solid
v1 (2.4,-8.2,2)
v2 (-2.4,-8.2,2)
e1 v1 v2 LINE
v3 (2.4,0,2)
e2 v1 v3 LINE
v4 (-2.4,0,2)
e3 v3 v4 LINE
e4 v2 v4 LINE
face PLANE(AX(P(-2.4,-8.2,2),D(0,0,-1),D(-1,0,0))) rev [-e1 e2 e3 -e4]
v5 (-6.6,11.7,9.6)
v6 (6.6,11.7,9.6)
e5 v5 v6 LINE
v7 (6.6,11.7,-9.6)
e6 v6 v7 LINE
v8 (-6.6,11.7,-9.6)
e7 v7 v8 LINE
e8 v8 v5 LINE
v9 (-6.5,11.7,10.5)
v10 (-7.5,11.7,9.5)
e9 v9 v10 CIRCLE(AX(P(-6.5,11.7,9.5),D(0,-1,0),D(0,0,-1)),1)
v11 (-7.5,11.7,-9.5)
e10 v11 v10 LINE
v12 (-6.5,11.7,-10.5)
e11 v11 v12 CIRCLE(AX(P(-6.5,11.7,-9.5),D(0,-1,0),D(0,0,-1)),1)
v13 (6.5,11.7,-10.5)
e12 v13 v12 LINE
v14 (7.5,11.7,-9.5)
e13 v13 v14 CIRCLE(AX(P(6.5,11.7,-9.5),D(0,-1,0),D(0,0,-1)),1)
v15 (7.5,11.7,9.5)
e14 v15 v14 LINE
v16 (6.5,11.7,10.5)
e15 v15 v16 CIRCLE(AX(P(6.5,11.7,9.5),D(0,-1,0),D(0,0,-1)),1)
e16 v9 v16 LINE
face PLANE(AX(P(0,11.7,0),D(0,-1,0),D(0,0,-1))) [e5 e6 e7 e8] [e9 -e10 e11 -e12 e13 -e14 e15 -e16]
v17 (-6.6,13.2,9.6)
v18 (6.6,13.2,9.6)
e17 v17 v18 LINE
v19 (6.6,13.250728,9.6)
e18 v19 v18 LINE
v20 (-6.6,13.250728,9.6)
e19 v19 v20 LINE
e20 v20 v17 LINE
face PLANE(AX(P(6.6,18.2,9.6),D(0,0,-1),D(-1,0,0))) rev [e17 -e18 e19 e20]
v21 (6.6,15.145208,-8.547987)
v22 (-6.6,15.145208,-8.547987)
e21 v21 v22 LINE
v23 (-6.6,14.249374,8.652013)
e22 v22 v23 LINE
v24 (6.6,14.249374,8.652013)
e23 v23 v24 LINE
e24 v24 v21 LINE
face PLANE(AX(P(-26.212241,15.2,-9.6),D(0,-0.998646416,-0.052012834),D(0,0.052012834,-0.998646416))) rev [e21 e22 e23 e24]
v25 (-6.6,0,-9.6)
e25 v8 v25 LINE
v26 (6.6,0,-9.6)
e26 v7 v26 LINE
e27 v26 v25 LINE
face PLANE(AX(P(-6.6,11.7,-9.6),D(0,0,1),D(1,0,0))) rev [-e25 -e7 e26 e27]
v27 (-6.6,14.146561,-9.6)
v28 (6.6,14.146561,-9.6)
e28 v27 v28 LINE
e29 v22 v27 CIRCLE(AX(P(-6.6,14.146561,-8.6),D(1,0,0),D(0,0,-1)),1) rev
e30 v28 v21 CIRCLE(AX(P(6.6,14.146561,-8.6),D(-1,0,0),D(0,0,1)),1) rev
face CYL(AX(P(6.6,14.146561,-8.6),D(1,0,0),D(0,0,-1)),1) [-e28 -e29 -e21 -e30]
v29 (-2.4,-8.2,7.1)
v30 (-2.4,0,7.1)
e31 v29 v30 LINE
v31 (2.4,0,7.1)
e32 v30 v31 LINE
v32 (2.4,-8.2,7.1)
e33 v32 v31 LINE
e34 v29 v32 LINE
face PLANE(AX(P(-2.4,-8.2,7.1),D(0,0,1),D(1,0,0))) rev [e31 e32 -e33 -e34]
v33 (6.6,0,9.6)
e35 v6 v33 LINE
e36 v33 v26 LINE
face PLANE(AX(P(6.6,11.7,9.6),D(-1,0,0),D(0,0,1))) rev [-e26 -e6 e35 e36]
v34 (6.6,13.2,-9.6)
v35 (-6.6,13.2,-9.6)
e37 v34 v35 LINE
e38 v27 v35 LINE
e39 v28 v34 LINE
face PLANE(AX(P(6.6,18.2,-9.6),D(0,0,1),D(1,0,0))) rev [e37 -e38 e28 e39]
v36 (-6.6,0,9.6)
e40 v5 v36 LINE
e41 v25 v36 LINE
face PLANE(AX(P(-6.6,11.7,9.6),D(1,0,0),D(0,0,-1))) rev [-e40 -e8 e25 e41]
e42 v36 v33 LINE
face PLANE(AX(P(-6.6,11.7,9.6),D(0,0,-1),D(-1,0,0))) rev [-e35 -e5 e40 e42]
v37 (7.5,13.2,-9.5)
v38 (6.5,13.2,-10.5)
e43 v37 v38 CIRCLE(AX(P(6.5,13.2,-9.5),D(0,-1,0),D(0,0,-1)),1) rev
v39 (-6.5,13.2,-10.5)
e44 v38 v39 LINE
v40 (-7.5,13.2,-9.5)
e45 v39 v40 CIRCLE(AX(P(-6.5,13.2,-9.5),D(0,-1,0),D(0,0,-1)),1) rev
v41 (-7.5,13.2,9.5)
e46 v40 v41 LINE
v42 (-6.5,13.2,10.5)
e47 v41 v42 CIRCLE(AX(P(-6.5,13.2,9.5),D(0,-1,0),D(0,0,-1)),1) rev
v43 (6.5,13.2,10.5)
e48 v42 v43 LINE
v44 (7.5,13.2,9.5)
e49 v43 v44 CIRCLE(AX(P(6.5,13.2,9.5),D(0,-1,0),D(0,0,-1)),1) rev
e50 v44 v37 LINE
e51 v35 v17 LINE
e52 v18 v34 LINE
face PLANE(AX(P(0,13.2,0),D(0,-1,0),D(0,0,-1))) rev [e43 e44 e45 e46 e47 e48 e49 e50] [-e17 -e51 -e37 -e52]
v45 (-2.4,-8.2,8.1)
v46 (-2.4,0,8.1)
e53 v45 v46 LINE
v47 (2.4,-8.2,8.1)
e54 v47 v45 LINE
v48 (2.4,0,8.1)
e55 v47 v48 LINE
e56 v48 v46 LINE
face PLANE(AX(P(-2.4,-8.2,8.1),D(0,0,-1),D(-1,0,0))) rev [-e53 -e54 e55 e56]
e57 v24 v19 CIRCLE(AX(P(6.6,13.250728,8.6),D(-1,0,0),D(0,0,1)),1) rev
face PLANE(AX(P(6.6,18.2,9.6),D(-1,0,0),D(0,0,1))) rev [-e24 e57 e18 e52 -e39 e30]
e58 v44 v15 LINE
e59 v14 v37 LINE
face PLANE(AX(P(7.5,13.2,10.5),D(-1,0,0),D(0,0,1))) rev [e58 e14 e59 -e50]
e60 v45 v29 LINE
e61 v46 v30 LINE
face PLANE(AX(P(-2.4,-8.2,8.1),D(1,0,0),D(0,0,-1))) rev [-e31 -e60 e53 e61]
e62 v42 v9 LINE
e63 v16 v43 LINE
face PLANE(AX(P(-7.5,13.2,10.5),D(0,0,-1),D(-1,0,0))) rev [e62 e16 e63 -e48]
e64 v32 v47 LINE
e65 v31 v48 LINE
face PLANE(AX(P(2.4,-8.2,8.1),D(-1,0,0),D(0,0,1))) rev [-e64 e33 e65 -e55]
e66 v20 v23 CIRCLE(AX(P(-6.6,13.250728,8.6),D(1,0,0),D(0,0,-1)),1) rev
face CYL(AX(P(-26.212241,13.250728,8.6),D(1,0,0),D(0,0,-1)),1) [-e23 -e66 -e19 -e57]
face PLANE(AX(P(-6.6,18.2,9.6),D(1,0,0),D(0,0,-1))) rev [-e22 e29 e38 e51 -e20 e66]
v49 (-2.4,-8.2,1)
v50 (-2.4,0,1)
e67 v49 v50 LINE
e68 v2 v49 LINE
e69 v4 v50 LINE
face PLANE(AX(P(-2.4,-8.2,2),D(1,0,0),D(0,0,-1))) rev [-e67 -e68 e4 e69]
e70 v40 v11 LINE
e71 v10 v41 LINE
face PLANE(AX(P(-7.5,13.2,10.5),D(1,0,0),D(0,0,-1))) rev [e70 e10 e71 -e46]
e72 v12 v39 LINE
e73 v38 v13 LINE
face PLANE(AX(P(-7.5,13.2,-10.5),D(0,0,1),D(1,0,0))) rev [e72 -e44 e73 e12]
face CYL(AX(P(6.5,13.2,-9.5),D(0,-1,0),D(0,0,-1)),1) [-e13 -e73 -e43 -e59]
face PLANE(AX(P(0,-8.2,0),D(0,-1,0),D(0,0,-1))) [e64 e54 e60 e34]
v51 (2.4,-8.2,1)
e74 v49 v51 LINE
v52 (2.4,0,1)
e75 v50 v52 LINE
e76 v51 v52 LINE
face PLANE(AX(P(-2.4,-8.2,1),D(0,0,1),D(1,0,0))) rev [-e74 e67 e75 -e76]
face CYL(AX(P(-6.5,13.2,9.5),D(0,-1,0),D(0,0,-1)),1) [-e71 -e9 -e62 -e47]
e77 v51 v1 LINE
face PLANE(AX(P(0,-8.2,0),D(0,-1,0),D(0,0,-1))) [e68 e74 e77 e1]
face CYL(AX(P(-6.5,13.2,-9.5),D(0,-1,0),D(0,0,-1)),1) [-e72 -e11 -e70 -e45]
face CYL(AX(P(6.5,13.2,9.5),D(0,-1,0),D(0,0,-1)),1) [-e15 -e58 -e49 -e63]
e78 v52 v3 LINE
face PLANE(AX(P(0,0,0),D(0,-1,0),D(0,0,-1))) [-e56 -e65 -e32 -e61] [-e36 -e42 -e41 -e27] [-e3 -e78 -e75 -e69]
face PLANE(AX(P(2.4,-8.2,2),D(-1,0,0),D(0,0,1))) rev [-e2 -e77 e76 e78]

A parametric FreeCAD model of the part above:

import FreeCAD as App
import Part
import Sketcher

V = App.Vector
Q = App.Units.Quantity


def edges_at(feature, points):
    """Names of the edges that pass closest to the given points."""
    edges = feature.Shape.Edges
    near = lambda p: min(range(len(edges)), key=lambda i: edges[i].distToShape(Part.Vertex(*p))[0])
    return sorted({f"Edge{near(p) + 1}" for p in points})

doc = App.newDocument("Part")
body = doc.addObject("PartDesign::Body", "Body")

sketch1 = body.newObject("Sketcher::SketchObject", "Sketch")
sketch1.AttachmentSupport = (doc.getObject("XZ_Plane"), [""])
sketch1.MapMode = "FlatFace"
sketch1.addGeometry(Part.LineSegment(V(-7, -10, 0), V(-7, 10, 0)), False)
sketch1.addGeometry(Part.LineSegment(V(-7, 10, 0), V(7, 10, 0)), False)
sketch1.addGeometry(Part.LineSegment(V(7, 10, 0), V(7, -10, 0)), False)
sketch1.addGeometry(Part.LineSegment(V(7, -10, 0), V(-7, -10, 0)), False)
sketch1.addConstraint(Sketcher.Constraint("Coincident", 0, 2, 1, 1))
sketch1.addConstraint(Sketcher.Constraint("Coincident", 1, 2, 2, 1))
sketch1.addConstraint(Sketcher.Constraint("Coincident", 2, 2, 3, 1))
sketch1.addConstraint(Sketcher.Constraint("Coincident", 3, 2, 0, 1))
sketch1.addConstraint(Sketcher.Constraint("Vertical", 0))
sketch1.addConstraint(Sketcher.Constraint("Horizontal", 1))
sketch1.addConstraint(Sketcher.Constraint("Vertical", 2))
sketch1.addConstraint(Sketcher.Constraint("Horizontal", 3))
sketch1.addConstraint(Sketcher.Constraint("Symmetric", 0, 2, 2, 2, -1, 1))
sketch1.addConstraint(Sketcher.Constraint("DistanceX", 1, 1, 1, 2, Q("13.2 mm")))
sketch1.addConstraint(Sketcher.Constraint("DistanceY", 0, 1, 0, 2, Q("19.2 mm")))
pad1 = body.newObject("PartDesign::Pad", "Pad")
pad1.Profile = sketch1
pad1.Length = 11.7
pad1.Reversed = True

sketch2 = body.newObject("Sketcher::SketchObject", "Sketch001")
sketch2.AttachmentSupport = (doc.getObject("XZ_Plane"), [""])
sketch2.MapMode = "FlatFace"
sketch2.AttachmentOffset = App.Placement(V(0, 0, -11.7), App.Rotation())
sketch2.addGeometry(Part.LineSegment(V(-8, -10, 0), V(-8, 10, 0)), False)
sketch2.addGeometry(Part.LineSegment(V(-8, 10, 0), V(8, 10, 0)), False)
sketch2.addGeometry(Part.LineSegment(V(8, 10, 0), V(8, -10, 0)), False)
sketch2.addGeometry(Part.LineSegment(V(8, -10, 0), V(-8, -10, 0)), False)
sketch2.addConstraint(Sketcher.Constraint("Coincident", 0, 2, 1, 1))
sketch2.addConstraint(Sketcher.Constraint("Coincident", 1, 2, 2, 1))
sketch2.addConstraint(Sketcher.Constraint("Coincident", 2, 2, 3, 1))
sketch2.addConstraint(Sketcher.Constraint("Coincident", 3, 2, 0, 1))
sketch2.addConstraint(Sketcher.Constraint("Vertical", 0))
sketch2.addConstraint(Sketcher.Constraint("Horizontal", 1))
sketch2.addConstraint(Sketcher.Constraint("Vertical", 2))
sketch2.addConstraint(Sketcher.Constraint("Horizontal", 3))
sketch2.addConstraint(Sketcher.Constraint("Symmetric", 0, 2, 2, 2, -1, 1))
sketch2.addConstraint(Sketcher.Constraint("DistanceX", 1, 1, 1, 2, Q("15 mm")))
sketch2.addConstraint(Sketcher.Constraint("DistanceY", 0, 1, 0, 2, Q("21 mm")))
pad2 = body.newObject("PartDesign::Pad", "Pad001")
pad2.Profile = sketch2
pad2.Length = 1.5
pad2.Reversed = True

sketch3 = body.newObject("Sketcher::SketchObject", "Sketch002")
sketch3.AttachmentSupport = (doc.getObject("XZ_Plane"), [""])
sketch3.MapMode = "FlatFace"
sketch3.AttachmentOffset = App.Placement(V(0, 0, -13.2), App.Rotation())
sketch3.addGeometry(Part.LineSegment(V(-7, -10, 0), V(-7, 10, 0)), False)
sketch3.addGeometry(Part.LineSegment(V(-7, 10, 0), V(7, 10, 0)), False)
sketch3.addGeometry(Part.LineSegment(V(7, 10, 0), V(7, -10, 0)), False)
sketch3.addGeometry(Part.LineSegment(V(7, -10, 0), V(-7, -10, 0)), False)
sketch3.addConstraint(Sketcher.Constraint("Coincident", 0, 2, 1, 1))
sketch3.addConstraint(Sketcher.Constraint("Coincident", 1, 2, 2, 1))
sketch3.addConstraint(Sketcher.Constraint("Coincident", 2, 2, 3, 1))
sketch3.addConstraint(Sketcher.Constraint("Coincident", 3, 2, 0, 1))
sketch3.addConstraint(Sketcher.Constraint("Vertical", 0))
sketch3.addConstraint(Sketcher.Constraint("Horizontal", 1))
sketch3.addConstraint(Sketcher.Constraint("Vertical", 2))
sketch3.addConstraint(Sketcher.Constraint("Horizontal", 3))
sketch3.addConstraint(Sketcher.Constraint("Symmetric", 0, 2, 2, 2, -1, 1))
sketch3.addConstraint(Sketcher.Constraint("DistanceX", 1, 1, 1, 2, Q("13.2 mm")))
sketch3.addConstraint(Sketcher.Constraint("DistanceY", 0, 1, 0, 2, Q("19.2 mm")))
pad3 = body.newObject("PartDesign::Pad", "Pad002")
pad3.Profile = sketch3
pad3.Length = 5
pad3.Reversed = True

sketch4 = body.newObject("Sketcher::SketchObject", "Sketch003")
sketch4.AttachmentSupport = (doc.getObject("YZ_Plane"), [""])
sketch4.MapMode = "FlatFace"
sketch4.AttachmentOffset = App.Placement(V(0, 0, 6.6), App.Rotation())
sketch4.addGeometry(Part.LineSegment(V(18.2, 9.6, 0), V(14.2, 9.6, 0)), False)
sketch4.addGeometry(Part.LineSegment(V(14.2, 9.6, 0), V(15.2, -9.6, 0)), False)
sketch4.addGeometry(Part.LineSegment(V(15.2, -9.6, 0), V(18.2, -9.6, 0)), False)
sketch4.addGeometry(Part.LineSegment(V(18.2, -9.6, 0), V(18.2, 9.6, 0)), False)
sketch4.addConstraint(Sketcher.Constraint("Coincident", 0, 2, 1, 1))
sketch4.addConstraint(Sketcher.Constraint("Coincident", 1, 2, 2, 1))
sketch4.addConstraint(Sketcher.Constraint("Coincident", 2, 2, 3, 1))
sketch4.addConstraint(Sketcher.Constraint("Coincident", 3, 2, 0, 1))
sketch4.addConstraint(Sketcher.Constraint("Horizontal", 0))
sketch4.addConstraint(Sketcher.Constraint("Horizontal", 2))
sketch4.addConstraint(Sketcher.Constraint("Vertical", 3))
sketch4.addConstraint(Sketcher.Constraint("DistanceX", 0, 2, 0, 1, Q("4 mm")))
sketch4.addConstraint(Sketcher.Constraint("DistanceX", 2, 1, 2, 2, Q("3 mm")))
sketch4.addConstraint(Sketcher.Constraint("DistanceY", 3, 1, 3, 2, Q("19.2 mm")))
sketch4.addConstraint(Sketcher.Constraint("DistanceX", -1, 1, 0, 2, Q("14.2 mm")))
sketch4.addConstraint(Sketcher.Constraint("DistanceY", -1, 1, 0, 2, Q("9.6 mm")))
pocket1 = body.newObject("PartDesign::Pocket", "Pocket")
pocket1.Profile = sketch4
pocket1.Length = 13.2

sketch5 = body.newObject("Sketcher::SketchObject", "Sketch004")
sketch5.AttachmentSupport = (doc.getObject("XZ_Plane"), [""])
sketch5.MapMode = "FlatFace"
sketch5.addGeometry(Part.LineSegment(V(-2.4, 2, 0), V(-2.4, 1, 0)), False)
sketch5.addGeometry(Part.LineSegment(V(-2.4, 1, 0), V(2.4, 1, 0)), False)
sketch5.addGeometry(Part.LineSegment(V(2.4, 1, 0), V(2.4, 2, 0)), False)
sketch5.addGeometry(Part.LineSegment(V(2.4, 2, 0), V(-2.4, 2, 0)), False)
sketch5.addGeometry(Part.LineSegment(V(-2.4, 8.1, 0), V(-2.4, 7.1, 0)), False)
sketch5.addGeometry(Part.LineSegment(V(-2.4, 7.1, 0), V(2.4, 7.1, 0)), False)
sketch5.addGeometry(Part.LineSegment(V(2.4, 7.1, 0), V(2.4, 8.1, 0)), False)
sketch5.addGeometry(Part.LineSegment(V(2.4, 8.1, 0), V(-2.4, 8.1, 0)), False)
sketch5.addConstraint(Sketcher.Constraint("Coincident", 0, 2, 1, 1))
sketch5.addConstraint(Sketcher.Constraint("Coincident", 1, 2, 2, 1))
sketch5.addConstraint(Sketcher.Constraint("Coincident", 2, 2, 3, 1))
sketch5.addConstraint(Sketcher.Constraint("Coincident", 3, 2, 0, 1))
sketch5.addConstraint(Sketcher.Constraint("Coincident", 4, 2, 5, 1))
sketch5.addConstraint(Sketcher.Constraint("Coincident", 5, 2, 6, 1))
sketch5.addConstraint(Sketcher.Constraint("Coincident", 6, 2, 7, 1))
sketch5.addConstraint(Sketcher.Constraint("Coincident", 7, 2, 4, 1))
sketch5.addConstraint(Sketcher.Constraint("Vertical", 0))
sketch5.addConstraint(Sketcher.Constraint("Horizontal", 1))
sketch5.addConstraint(Sketcher.Constraint("Vertical", 2))
sketch5.addConstraint(Sketcher.Constraint("Horizontal", 3))
sketch5.addConstraint(Sketcher.Constraint("Vertical", 4))
sketch5.addConstraint(Sketcher.Constraint("Horizontal", 5))
sketch5.addConstraint(Sketcher.Constraint("Vertical", 6))
sketch5.addConstraint(Sketcher.Constraint("Horizontal", 7))
sketch5.addConstraint(Sketcher.Constraint("Vertical", 3, 2, 4, 2))
sketch5.addConstraint(Sketcher.Constraint("Vertical", 2, 2, 5, 2))
sketch5.addConstraint(Sketcher.Constraint("Equal", 2, 4))
sketch5.addConstraint(Sketcher.Constraint("DistanceY", 0, 2, 0, 1, Q("1 mm")))
sketch5.addConstraint(Sketcher.Constraint("DistanceX", 1, 1, 1, 2, Q("4.8 mm")))
sketch5.addConstraint(Sketcher.Constraint("DistanceY", -1, 1, 0, 2, Q("1 mm")))
sketch5.addConstraint(Sketcher.Constraint("DistanceX", 0, 2, -1, 1, Q("2.4 mm")))
sketch5.addConstraint(Sketcher.Constraint("DistanceY", -1, 1, 4, 2, Q("7.1 mm")))
pad4 = body.newObject("PartDesign::Pad", "Pad003")
pad4.Profile = sketch5
pad4.Length = 8.2
doc.recompute()

fillet = body.newObject("PartDesign::Fillet", "Fillet")
fillet.Base = (pad4, edges_at(pad4, [
    (7.5, 12.45, 10.5),
    (7.5, 12.45, -10.5),
    (-7.5, 12.45, -10.5),
    (-7.5, 12.45, 10.5),
    (0, 15.2, -9.6),
    (0, 14.2, 9.6),
]))
fillet.Radius = 1

doc.recompute()
